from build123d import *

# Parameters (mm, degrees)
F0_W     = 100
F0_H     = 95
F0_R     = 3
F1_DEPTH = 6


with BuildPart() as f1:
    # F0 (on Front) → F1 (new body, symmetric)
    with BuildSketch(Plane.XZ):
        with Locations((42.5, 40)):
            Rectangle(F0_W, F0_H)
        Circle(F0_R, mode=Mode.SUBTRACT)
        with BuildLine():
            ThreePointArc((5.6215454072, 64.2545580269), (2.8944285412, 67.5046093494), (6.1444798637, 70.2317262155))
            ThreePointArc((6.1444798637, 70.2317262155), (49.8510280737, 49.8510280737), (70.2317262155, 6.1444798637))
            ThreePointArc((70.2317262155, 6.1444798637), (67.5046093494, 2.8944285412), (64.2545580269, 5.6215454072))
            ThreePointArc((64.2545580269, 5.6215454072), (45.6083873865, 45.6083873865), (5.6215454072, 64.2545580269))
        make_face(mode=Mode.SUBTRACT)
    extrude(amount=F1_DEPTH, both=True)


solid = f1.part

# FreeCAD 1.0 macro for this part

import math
import FreeCAD as App
import Part
import Sketcher


def add_polygon(sketch, points):
    """Adds a closed chain of lines whose ends are joined by coincident constraints."""
    first, n = sketch.GeometryCount, len(points)
    for a, b in zip(points, points[1:] + points[:1]):
        sketch.addGeometry(Part.LineSegment(App.Vector(*a, 0), App.Vector(*b, 0)), False)
    for i in range(n):
        sketch.addConstraint(Sketcher.Constraint("Coincident", first + i, 2, first + (i + 1) % n, 1))

doc = App.newDocument("Part")
body = doc.addObject("PartDesign::Body", "Body")

# Sketch on XZ plane
sketch1 = body.newObject("Sketcher::SketchObject", "Sketch")
sketch1.AttachmentSupport = (doc.getObject("XZ_Plane"), [""])
sketch1.MapMode = "FlatFace"
add_polygon(sketch1, [(-7.5, 87.5), (-7.5, -7.5), (92.5, -7.5), (92.5, 87.5)])  # lines 0-3
sketch1.addGeometry(Part.Circle(App.Vector(0, 0, 0), App.Vector(0, 0, 1), 3), False)  # 4
sketch1.addGeometry(Part.ArcOfCircle(Part.Circle(App.Vector(0, 0, 0), App.Vector(0, 0, 1), 64.5), math.radians(5), math.radians(85)), False)  # 5
sketch1.addGeometry(Part.ArcOfCircle(Part.Circle(App.Vector(5.9, 67.2, 0), App.Vector(0, 0, 1), 3), math.radians(85), math.radians(265)), False)  # 6
sketch1.addGeometry(Part.ArcOfCircle(Part.Circle(App.Vector(0, 0, 0), App.Vector(0, 0, 1), 70.5), math.radians(5), math.radians(85)), False)  # 7
sketch1.addGeometry(Part.ArcOfCircle(Part.Circle(App.Vector(67.2, 5.9, 0), App.Vector(0, 0, 1), 3), math.radians(-175), math.radians(5)), False)  # 8
sketch1.addConstraint(Sketcher.Constraint("Tangent", 5, 2, 6, 2))
sketch1.addConstraint(Sketcher.Constraint("Tangent", 6, 1, 7, 2))
sketch1.addConstraint(Sketcher.Constraint("Tangent", 7, 1, 8, 2))
sketch1.addConstraint(Sketcher.Constraint("Tangent", 8, 1, 5, 1))
sketch1.addConstraint(Sketcher.Constraint("Vertical", 0))
sketch1.addConstraint(Sketcher.Constraint("Horizontal", 1))
sketch1.addConstraint(Sketcher.Constraint("Vertical", 2))
sketch1.addConstraint(Sketcher.Constraint("Horizontal", 3))
sketch1.addConstraint(Sketcher.Constraint("Coincident", 4, 3, -1, 1))
sketch1.addConstraint(Sketcher.Constraint("Coincident", 5, 3, -1, 1))
sketch1.addConstraint(Sketcher.Constraint("Coincident", 7, 3, -1, 1))
sketch1.addConstraint(Sketcher.Constraint("Equal", 4, 6))
sketch1.addConstraint(Sketcher.Constraint("Diameter", 4, 6.0))
sketch1.addConstraint(Sketcher.Constraint("Radius", 5, 64.5))
sketch1.addConstraint(Sketcher.Constraint("DistanceX", 1, 1, 1, 2, 100.0))
sketch1.addConstraint(Sketcher.Constraint("DistanceY", 0, 2, 0, 1, 95.0))
sketch1.addConstraint(Sketcher.Constraint("DistanceX", 0, 2, -1, 1, 7.5))
sketch1.addConstraint(Sketcher.Constraint("DistanceY", 0, 2, -1, 1, 7.5))
sketch1.addConstraint(Sketcher.Constraint("DistanceY", -1, 1, 5, 2, 64.254558))
sketch1.addConstraint(Sketcher.Constraint("DistanceY", -1, 1, 7, 1, 6.14448))
pad1 = body.newObject("PartDesign::Pad", "Pad")
pad1.Profile = sketch1
pad1.Length = 12
pad1.Midplane = True

doc.recompute()
